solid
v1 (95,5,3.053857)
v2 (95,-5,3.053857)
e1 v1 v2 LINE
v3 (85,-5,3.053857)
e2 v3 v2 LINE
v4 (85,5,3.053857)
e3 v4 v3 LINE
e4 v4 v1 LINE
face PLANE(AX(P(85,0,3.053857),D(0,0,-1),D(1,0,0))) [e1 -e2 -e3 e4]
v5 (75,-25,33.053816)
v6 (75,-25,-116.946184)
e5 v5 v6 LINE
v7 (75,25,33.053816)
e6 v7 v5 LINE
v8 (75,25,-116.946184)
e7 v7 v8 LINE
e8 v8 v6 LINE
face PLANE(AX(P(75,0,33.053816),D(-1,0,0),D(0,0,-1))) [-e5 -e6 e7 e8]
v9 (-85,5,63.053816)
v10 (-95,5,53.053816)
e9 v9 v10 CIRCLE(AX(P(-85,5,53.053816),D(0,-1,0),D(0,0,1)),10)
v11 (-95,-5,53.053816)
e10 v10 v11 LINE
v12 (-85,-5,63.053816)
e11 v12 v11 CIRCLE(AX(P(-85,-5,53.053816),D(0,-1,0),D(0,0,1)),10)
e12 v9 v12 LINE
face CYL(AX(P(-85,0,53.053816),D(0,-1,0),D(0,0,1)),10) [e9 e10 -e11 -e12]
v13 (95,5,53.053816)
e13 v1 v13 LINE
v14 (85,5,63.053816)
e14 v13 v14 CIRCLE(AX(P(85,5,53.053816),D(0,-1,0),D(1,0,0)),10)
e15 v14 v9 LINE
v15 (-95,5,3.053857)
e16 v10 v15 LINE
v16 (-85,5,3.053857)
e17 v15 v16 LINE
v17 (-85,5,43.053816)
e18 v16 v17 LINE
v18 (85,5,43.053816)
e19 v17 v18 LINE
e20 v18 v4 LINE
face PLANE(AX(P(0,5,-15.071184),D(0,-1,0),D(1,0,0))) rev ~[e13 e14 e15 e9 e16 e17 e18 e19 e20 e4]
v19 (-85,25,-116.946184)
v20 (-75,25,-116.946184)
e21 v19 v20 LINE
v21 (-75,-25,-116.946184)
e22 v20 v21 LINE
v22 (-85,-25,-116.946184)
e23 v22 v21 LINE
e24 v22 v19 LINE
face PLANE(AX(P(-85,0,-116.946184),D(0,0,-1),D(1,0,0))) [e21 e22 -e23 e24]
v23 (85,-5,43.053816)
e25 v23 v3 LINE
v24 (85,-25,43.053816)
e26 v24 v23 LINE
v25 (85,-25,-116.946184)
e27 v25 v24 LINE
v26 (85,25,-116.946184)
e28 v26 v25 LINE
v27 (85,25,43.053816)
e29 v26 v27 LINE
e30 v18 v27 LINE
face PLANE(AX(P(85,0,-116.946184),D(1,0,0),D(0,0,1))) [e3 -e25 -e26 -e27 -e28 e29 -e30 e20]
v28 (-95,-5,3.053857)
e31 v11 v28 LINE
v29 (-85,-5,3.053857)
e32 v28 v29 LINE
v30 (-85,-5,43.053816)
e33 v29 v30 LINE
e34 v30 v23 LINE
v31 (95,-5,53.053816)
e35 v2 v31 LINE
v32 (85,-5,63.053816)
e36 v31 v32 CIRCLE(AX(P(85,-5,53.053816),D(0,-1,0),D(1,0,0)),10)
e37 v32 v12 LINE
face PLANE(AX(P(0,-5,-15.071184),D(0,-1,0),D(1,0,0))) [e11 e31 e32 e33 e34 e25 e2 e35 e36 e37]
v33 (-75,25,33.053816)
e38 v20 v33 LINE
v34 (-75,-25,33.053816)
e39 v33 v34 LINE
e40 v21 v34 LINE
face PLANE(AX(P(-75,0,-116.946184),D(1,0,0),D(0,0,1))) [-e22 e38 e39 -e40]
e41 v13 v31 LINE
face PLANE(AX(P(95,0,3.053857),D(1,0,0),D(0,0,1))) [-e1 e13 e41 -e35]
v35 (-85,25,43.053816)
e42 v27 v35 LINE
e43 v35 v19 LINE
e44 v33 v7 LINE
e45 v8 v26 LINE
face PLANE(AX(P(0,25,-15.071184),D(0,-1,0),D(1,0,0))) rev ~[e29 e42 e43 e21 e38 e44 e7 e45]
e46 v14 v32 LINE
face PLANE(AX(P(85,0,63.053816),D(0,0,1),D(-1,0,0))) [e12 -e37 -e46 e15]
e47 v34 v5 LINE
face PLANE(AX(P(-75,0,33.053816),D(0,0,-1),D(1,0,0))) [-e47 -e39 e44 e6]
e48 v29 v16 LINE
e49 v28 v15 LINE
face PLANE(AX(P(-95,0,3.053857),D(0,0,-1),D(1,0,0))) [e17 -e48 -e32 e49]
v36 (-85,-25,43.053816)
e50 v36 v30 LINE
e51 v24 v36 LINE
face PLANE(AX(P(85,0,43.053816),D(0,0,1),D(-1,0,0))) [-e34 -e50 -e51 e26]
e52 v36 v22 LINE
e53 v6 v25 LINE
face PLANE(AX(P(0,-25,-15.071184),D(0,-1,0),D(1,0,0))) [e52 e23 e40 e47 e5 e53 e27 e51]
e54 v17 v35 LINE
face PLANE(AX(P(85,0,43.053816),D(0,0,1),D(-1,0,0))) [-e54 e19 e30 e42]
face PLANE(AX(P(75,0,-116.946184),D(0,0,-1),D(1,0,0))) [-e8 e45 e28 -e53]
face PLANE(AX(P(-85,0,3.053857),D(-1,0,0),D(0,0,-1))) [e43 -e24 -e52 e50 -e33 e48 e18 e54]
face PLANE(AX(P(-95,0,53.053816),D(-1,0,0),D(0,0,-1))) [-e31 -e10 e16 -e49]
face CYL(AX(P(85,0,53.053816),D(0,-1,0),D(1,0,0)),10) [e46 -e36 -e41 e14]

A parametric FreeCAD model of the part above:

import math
import FreeCAD as App
import Part
import Sketcher
from FreeCAD import Vector


def add_polygon(sketch, points):
    """Adds a closed chain of lines whose ends are joined by coincident constraints."""
    first, n = sketch.GeometryCount, len(points)
    for a, b in zip(points, points[1:] + points[:1]):
        sketch.addGeometry(Part.LineSegment(App.Vector(*a, 0), App.Vector(*b, 0)), False)
    for i in range(n):
        sketch.addConstraint(Sketcher.Constraint("Coincident", first + i, 2, first + (i + 1) % n, 1))

doc = App.newDocument("Part")
body = doc.addObject("PartDesign::Body", "Body")

# Sketch on XZ plane
sketch1 = body.newObject("Sketcher::SketchObject", "Sketch")
sketch1.AttachmentSupport = (doc.getObject("XZ_Plane"), [""])
sketch1.MapMode = "FlatFace"
add_polygon(sketch1, [(-85, -117), (-75, -117), (-75, 33), (75, 33), (75, -117), (85, -117), (85, 43), (-85, 43)])  # lines 0-7
sketch1.addConstraint([
    Sketcher.Constraint("Horizontal", 0),
    Sketcher.Constraint("Vertical", 1),
    Sketcher.Constraint("Horizontal", 2),
    Sketcher.Constraint("Vertical", 3),
    Sketcher.Constraint("Horizontal", 4),
    Sketcher.Constraint("Vertical", 5),
    Sketcher.Constraint("Horizontal", 6),
    Sketcher.Constraint("Vertical", 7),
    Sketcher.Constraint("Symmetric", 0, 2, 3, 2, -2),
    Sketcher.Constraint("Equal", 0, 4),
    Sketcher.Constraint("Equal", 2, 1),
    Sketcher.Constraint("DistanceX", 0, 1, 0, 2, 10.0),
    Sketcher.Constraint("DistanceX", 2, 1, 2, 2, 150.0),
    Sketcher.Constraint("DistanceY", 5, 1, 5, 2, 160.0),
    Sketcher.Constraint("DistanceY", 0, 2, -1, 1, 116.946184),
])
pad1 = body.newObject("PartDesign::Pad", "Pad")
pad1.Profile = sketch1
pad1.Length = 50
pad1.Midplane = True

# Sketch on XZ plane
sketch2 = body.newObject("Sketcher::SketchObject", "Sketch001")
sketch2.AttachmentSupport = (doc.getObject("XZ_Plane"), [""])
sketch2.MapMode = "FlatFace"
sketch2.addGeometry([
    Part.LineSegment(Vector(-85, -117, 0), Vector(-75, -117, 0)),  # 0
    Part.LineSegment(Vector(-75, -117, 0), Vector(-75, 33, 0)),  # 1
    Part.LineSegment(Vector(-75, 33, 0), Vector(75, 33, 0)),  # 2
    Part.LineSegment(Vector(75, 33, 0), Vector(75, -117, 0)),  # 3
    Part.LineSegment(Vector(75, -117, 0), Vector(85, -117, 0)),  # 4
    Part.LineSegment(Vector(85, -117, 0), Vector(85, 3, 0)),  # 5
    Part.LineSegment(Vector(85, 3, 0), Vector(95, 3, 0)),  # 6
    Part.LineSegment(Vector(95, 3, 0), Vector(95, 53, 0)),  # 7
    Part.ArcOfCircle(Part.Circle(Vector(85, 53, 0), Vector(0, 0, 1), 10), math.radians(0), math.radians(90)),  # 8
    Part.LineSegment(Vector(85, 63, 0), Vector(-85, 63, 0)),  # 9
    Part.ArcOfCircle(Part.Circle(Vector(-85, 53, 0), Vector(0, 0, 1), 10), math.radians(90), math.radians(180)),  # 10
    Part.LineSegment(Vector(-95, 53, 0), Vector(-95, 3, 0)),  # 11
    Part.LineSegment(Vector(-95, 3, 0), Vector(-85, 3, 0)),  # 12
    Part.LineSegment(Vector(-85, 3, 0), Vector(-85, -117, 0)),  # 13
], False)
sketch2.addConstraint([
    Sketcher.Constraint("Coincident", 0, 2, 1, 1),
    Sketcher.Constraint("Coincident", 1, 2, 2, 1),
    Sketcher.Constraint("Coincident", 2, 2, 3, 1),
    Sketcher.Constraint("Coincident", 3, 2, 4, 1),
    Sketcher.Constraint("Coincident", 4, 2, 5, 1),
    Sketcher.Constraint("Coincident", 5, 2, 6, 1),
    Sketcher.Constraint("Coincident", 6, 2, 7, 1),
    Sketcher.Constraint("Tangent", 7, 2, 8, 1),
    Sketcher.Constraint("Tangent", 8, 2, 9, 1),
    Sketcher.Constraint("Tangent", 9, 2, 10, 1),
    Sketcher.Constraint("Tangent", 10, 2, 11, 1),
    Sketcher.Constraint("Coincident", 11, 2, 12, 1),
    Sketcher.Constraint("Coincident", 12, 2, 13, 1),
    Sketcher.Constraint("Coincident", 13, 2, 0, 1),
    Sketcher.Constraint("Horizontal", 0),
    Sketcher.Constraint("Vertical", 1),
    Sketcher.Constraint("Horizontal", 2),
    Sketcher.Constraint("Vertical", 3),
    Sketcher.Constraint("Horizontal", 4),
    Sketcher.Constraint("Vertical", 5),
    Sketcher.Constraint("Horizontal", 6),
    Sketcher.Constraint("Vertical", 7),
    Sketcher.Constraint("Horizontal", 9),
    Sketcher.Constraint("Vertical", 11),
    Sketcher.Constraint("Horizontal", 12),
    Sketcher.Constraint("Vertical", 13),
    Sketcher.Constraint("Equal", 8, 10),
    Sketcher.Constraint("Symmetric", 0, 2, 3, 2, -2),
    Sketcher.Constraint("Symmetric", 6, 2, 11, 2, -2),
    Sketcher.Constraint("Vertical", 8, 3, 4, 2),
    Sketcher.Constraint("Vertical", 9, 2, 12, 2),
    Sketcher.Constraint("Equal", 4, 6),
    Sketcher.Constraint("Equal", 2, 1),
    Sketcher.Constraint("Radius", 8, 10.0),
    Sketcher.Constraint("DistanceX", 2, 1, 2, 2, 150.0),
    Sketcher.Constraint("DistanceY", 0, 2, 10, 3, 170.0),
    Sketcher.Constraint("DistanceY", 5, 1, 5, 2, 120.000041),
    Sketcher.Constraint("DistanceY", -1, 1, 8, 3, 53.053816),
])
pad2 = body.newObject("PartDesign::Pad", "Pad001")
pad2.Profile = sketch2
pad2.Length = 10
pad2.Midplane = True

doc.recompute()
